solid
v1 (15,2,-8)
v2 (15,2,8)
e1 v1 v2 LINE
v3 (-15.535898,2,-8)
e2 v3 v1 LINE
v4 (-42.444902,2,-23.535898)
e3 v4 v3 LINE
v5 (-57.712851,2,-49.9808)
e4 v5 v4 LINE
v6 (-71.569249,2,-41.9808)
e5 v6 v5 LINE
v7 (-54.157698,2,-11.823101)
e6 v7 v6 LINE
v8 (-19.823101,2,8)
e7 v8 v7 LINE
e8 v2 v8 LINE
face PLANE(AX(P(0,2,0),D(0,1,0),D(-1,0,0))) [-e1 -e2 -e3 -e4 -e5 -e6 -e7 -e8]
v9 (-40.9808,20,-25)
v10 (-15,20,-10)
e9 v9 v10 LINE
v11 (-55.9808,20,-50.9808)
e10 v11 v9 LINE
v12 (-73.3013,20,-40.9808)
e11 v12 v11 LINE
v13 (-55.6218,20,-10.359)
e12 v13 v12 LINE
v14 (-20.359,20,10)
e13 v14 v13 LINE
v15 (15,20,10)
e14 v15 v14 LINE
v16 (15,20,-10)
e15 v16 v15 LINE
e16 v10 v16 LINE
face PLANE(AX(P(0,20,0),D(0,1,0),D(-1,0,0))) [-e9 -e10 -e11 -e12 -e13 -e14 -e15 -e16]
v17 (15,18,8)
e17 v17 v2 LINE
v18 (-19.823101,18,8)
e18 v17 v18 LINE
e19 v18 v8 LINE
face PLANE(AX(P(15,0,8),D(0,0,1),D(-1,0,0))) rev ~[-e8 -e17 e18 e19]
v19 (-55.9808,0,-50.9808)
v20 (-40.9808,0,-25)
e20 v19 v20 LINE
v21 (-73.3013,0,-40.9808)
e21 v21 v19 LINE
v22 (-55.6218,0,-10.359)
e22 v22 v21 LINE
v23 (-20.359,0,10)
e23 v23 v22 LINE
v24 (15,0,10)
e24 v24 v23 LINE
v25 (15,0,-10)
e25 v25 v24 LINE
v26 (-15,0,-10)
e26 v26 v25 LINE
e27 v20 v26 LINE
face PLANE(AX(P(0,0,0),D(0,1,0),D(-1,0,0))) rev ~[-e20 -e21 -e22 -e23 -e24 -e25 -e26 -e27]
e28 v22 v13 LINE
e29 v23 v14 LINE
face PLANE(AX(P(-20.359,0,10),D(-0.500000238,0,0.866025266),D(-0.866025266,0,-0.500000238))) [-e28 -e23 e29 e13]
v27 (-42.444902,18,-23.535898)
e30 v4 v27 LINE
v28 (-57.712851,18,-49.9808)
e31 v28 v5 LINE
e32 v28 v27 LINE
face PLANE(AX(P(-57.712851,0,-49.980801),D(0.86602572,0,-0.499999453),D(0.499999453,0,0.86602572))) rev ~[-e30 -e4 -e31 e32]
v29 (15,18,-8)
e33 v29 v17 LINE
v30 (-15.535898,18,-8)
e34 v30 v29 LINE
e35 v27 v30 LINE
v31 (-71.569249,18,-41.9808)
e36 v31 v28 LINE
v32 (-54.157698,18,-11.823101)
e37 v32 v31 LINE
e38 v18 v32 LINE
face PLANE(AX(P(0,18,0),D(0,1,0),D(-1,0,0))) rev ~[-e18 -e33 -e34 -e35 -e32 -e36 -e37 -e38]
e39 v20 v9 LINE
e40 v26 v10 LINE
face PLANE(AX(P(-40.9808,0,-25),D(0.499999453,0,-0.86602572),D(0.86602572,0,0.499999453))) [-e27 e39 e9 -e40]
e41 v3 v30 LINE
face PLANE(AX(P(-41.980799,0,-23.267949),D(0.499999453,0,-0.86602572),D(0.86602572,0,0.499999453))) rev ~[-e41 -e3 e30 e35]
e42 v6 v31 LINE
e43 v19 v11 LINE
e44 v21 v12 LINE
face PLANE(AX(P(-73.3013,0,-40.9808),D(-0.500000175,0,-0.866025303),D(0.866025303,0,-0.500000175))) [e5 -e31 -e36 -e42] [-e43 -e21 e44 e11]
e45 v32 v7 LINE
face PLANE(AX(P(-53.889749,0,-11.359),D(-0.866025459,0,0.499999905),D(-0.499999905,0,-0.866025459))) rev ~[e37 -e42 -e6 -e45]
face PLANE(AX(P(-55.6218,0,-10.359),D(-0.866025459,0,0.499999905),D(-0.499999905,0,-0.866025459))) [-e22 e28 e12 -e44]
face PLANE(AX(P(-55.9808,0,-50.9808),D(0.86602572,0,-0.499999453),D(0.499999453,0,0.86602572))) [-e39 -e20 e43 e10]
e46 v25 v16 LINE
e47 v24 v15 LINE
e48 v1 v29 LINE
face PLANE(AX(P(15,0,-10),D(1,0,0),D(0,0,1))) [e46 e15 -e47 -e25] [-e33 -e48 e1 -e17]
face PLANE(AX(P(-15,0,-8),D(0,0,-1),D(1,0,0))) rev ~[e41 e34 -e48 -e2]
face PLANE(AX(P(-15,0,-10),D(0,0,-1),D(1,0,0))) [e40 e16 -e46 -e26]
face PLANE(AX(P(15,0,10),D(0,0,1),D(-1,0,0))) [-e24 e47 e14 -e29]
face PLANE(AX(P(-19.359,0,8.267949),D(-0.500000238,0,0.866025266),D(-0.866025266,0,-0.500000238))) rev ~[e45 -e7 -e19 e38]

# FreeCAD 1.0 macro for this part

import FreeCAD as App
import Part
import Sketcher
from FreeCAD import Vector
Q = App.Units.Quantity


def faces_at(feature, points):
    """Names of the faces that lie closest to the given points."""
    faces = feature.Shape.Faces
    near = lambda p: min(range(len(faces)), key=lambda i: faces[i].distToShape(Part.Vertex(*p))[0])
    return sorted({f"Face{near(p) + 1}" for p in points})


def add_polygon(sketch, points):
    """Adds a closed chain of lines whose ends are joined by coincident constraints."""
    first, n = sketch.GeometryCount, len(points)
    for a, b in zip(points, points[1:] + points[:1]):
        sketch.addGeometry(Part.LineSegment(App.Vector(*a, 0), App.Vector(*b, 0)), False)
    for i in range(n):
        sketch.addConstraint(Sketcher.Constraint("Coincident", first + i, 2, first + (i + 1) % n, 1))

doc = App.newDocument("Part")
params = doc.addObject("Spreadsheet::Sheet", "Params")
for row, (alias, value) in enumerate([
    ("sketch1_width", "30 mm"),
    ("sketch1_length", "30 mm"),
    ("sketch1_height", "20 mm"),
    ("sketch1_length2", "20 mm"),
    ("pad1_length", "20 mm"),
    ("thickness_wall", "2 mm"),
], start=1):
    params.set(f"A{row}", alias)
    params.set(f"B{row}", "=" + value)
    params.setAlias(f"B{row}", alias)

body = doc.addObject("PartDesign::Body", "Body")

sketch1 = body.newObject("Sketcher::SketchObject", "Sketch")
sketch1.AttachmentSupport = (doc.getObject("XZ_Plane"), [""])
sketch1.MapMode = "FlatFace"
add_polygon(sketch1, [(-20, 10), (15, 10), (15, -10), (-15, -10), (-41, -25), (-56, -51), (-73, -41), (-56, -10)])
sketch1.addConstraint([
    Sketcher.Constraint("Horizontal", 0),
    Sketcher.Constraint("Vertical", 1),
    Sketcher.Constraint("Horizontal", 2),
    Sketcher.Constraint("Symmetric", 0, 2, 2, 2, -1, 1),
    Sketcher.Constraint("Perpendicular", 4, 5),
    Sketcher.Constraint("Perpendicular", 5, 6),
    Sketcher.Constraint("Parallel", 3, 7),
    Sketcher.Constraint("Equal", 3, 4),
    Sketcher.Constraint("DistanceX", 2, 2, 2, 1, 30.0),
    Sketcher.Constraint("Angle", 7, Q("30 deg")),
    Sketcher.Constraint("Distance", 3, 30.0),
    Sketcher.Constraint("DistanceY", 1, 2, 1, 1, 20.0),
    Sketcher.Constraint("Angle", 4, Q("-120 deg")),
    Sketcher.Constraint("Distance", 5, 20.0),
    Sketcher.Constraint("DistanceX", 0, 1, 0, 2, 35.359),
])
sketch1.setExpression("Constraints[16]", "Params.sketch1_width")
sketch1.setExpression("Constraints[18]", "Params.sketch1_length")
sketch1.setExpression("Constraints[19]", "Params.sketch1_height")
sketch1.setExpression("Constraints[21]", "Params.sketch1_length2")
pad1 = body.newObject("PartDesign::Pad", "Pad")
pad1.Profile = sketch1
pad1.setExpression("Length", "Params.pad1_length")
pad1.Reversed = True
doc.recompute()

thickness = body.newObject("PartDesign::Thickness", "Thickness")
thickness.Base = (pad1, faces_at(pad1, [(-61.754, 6.667, -47.647), (15, 6.667, 3.333)]))
thickness.setExpression("Value", "Params.thickness_wall")
thickness.Reversed = True
thickness.Join = "Intersection"

doc.recompute()
